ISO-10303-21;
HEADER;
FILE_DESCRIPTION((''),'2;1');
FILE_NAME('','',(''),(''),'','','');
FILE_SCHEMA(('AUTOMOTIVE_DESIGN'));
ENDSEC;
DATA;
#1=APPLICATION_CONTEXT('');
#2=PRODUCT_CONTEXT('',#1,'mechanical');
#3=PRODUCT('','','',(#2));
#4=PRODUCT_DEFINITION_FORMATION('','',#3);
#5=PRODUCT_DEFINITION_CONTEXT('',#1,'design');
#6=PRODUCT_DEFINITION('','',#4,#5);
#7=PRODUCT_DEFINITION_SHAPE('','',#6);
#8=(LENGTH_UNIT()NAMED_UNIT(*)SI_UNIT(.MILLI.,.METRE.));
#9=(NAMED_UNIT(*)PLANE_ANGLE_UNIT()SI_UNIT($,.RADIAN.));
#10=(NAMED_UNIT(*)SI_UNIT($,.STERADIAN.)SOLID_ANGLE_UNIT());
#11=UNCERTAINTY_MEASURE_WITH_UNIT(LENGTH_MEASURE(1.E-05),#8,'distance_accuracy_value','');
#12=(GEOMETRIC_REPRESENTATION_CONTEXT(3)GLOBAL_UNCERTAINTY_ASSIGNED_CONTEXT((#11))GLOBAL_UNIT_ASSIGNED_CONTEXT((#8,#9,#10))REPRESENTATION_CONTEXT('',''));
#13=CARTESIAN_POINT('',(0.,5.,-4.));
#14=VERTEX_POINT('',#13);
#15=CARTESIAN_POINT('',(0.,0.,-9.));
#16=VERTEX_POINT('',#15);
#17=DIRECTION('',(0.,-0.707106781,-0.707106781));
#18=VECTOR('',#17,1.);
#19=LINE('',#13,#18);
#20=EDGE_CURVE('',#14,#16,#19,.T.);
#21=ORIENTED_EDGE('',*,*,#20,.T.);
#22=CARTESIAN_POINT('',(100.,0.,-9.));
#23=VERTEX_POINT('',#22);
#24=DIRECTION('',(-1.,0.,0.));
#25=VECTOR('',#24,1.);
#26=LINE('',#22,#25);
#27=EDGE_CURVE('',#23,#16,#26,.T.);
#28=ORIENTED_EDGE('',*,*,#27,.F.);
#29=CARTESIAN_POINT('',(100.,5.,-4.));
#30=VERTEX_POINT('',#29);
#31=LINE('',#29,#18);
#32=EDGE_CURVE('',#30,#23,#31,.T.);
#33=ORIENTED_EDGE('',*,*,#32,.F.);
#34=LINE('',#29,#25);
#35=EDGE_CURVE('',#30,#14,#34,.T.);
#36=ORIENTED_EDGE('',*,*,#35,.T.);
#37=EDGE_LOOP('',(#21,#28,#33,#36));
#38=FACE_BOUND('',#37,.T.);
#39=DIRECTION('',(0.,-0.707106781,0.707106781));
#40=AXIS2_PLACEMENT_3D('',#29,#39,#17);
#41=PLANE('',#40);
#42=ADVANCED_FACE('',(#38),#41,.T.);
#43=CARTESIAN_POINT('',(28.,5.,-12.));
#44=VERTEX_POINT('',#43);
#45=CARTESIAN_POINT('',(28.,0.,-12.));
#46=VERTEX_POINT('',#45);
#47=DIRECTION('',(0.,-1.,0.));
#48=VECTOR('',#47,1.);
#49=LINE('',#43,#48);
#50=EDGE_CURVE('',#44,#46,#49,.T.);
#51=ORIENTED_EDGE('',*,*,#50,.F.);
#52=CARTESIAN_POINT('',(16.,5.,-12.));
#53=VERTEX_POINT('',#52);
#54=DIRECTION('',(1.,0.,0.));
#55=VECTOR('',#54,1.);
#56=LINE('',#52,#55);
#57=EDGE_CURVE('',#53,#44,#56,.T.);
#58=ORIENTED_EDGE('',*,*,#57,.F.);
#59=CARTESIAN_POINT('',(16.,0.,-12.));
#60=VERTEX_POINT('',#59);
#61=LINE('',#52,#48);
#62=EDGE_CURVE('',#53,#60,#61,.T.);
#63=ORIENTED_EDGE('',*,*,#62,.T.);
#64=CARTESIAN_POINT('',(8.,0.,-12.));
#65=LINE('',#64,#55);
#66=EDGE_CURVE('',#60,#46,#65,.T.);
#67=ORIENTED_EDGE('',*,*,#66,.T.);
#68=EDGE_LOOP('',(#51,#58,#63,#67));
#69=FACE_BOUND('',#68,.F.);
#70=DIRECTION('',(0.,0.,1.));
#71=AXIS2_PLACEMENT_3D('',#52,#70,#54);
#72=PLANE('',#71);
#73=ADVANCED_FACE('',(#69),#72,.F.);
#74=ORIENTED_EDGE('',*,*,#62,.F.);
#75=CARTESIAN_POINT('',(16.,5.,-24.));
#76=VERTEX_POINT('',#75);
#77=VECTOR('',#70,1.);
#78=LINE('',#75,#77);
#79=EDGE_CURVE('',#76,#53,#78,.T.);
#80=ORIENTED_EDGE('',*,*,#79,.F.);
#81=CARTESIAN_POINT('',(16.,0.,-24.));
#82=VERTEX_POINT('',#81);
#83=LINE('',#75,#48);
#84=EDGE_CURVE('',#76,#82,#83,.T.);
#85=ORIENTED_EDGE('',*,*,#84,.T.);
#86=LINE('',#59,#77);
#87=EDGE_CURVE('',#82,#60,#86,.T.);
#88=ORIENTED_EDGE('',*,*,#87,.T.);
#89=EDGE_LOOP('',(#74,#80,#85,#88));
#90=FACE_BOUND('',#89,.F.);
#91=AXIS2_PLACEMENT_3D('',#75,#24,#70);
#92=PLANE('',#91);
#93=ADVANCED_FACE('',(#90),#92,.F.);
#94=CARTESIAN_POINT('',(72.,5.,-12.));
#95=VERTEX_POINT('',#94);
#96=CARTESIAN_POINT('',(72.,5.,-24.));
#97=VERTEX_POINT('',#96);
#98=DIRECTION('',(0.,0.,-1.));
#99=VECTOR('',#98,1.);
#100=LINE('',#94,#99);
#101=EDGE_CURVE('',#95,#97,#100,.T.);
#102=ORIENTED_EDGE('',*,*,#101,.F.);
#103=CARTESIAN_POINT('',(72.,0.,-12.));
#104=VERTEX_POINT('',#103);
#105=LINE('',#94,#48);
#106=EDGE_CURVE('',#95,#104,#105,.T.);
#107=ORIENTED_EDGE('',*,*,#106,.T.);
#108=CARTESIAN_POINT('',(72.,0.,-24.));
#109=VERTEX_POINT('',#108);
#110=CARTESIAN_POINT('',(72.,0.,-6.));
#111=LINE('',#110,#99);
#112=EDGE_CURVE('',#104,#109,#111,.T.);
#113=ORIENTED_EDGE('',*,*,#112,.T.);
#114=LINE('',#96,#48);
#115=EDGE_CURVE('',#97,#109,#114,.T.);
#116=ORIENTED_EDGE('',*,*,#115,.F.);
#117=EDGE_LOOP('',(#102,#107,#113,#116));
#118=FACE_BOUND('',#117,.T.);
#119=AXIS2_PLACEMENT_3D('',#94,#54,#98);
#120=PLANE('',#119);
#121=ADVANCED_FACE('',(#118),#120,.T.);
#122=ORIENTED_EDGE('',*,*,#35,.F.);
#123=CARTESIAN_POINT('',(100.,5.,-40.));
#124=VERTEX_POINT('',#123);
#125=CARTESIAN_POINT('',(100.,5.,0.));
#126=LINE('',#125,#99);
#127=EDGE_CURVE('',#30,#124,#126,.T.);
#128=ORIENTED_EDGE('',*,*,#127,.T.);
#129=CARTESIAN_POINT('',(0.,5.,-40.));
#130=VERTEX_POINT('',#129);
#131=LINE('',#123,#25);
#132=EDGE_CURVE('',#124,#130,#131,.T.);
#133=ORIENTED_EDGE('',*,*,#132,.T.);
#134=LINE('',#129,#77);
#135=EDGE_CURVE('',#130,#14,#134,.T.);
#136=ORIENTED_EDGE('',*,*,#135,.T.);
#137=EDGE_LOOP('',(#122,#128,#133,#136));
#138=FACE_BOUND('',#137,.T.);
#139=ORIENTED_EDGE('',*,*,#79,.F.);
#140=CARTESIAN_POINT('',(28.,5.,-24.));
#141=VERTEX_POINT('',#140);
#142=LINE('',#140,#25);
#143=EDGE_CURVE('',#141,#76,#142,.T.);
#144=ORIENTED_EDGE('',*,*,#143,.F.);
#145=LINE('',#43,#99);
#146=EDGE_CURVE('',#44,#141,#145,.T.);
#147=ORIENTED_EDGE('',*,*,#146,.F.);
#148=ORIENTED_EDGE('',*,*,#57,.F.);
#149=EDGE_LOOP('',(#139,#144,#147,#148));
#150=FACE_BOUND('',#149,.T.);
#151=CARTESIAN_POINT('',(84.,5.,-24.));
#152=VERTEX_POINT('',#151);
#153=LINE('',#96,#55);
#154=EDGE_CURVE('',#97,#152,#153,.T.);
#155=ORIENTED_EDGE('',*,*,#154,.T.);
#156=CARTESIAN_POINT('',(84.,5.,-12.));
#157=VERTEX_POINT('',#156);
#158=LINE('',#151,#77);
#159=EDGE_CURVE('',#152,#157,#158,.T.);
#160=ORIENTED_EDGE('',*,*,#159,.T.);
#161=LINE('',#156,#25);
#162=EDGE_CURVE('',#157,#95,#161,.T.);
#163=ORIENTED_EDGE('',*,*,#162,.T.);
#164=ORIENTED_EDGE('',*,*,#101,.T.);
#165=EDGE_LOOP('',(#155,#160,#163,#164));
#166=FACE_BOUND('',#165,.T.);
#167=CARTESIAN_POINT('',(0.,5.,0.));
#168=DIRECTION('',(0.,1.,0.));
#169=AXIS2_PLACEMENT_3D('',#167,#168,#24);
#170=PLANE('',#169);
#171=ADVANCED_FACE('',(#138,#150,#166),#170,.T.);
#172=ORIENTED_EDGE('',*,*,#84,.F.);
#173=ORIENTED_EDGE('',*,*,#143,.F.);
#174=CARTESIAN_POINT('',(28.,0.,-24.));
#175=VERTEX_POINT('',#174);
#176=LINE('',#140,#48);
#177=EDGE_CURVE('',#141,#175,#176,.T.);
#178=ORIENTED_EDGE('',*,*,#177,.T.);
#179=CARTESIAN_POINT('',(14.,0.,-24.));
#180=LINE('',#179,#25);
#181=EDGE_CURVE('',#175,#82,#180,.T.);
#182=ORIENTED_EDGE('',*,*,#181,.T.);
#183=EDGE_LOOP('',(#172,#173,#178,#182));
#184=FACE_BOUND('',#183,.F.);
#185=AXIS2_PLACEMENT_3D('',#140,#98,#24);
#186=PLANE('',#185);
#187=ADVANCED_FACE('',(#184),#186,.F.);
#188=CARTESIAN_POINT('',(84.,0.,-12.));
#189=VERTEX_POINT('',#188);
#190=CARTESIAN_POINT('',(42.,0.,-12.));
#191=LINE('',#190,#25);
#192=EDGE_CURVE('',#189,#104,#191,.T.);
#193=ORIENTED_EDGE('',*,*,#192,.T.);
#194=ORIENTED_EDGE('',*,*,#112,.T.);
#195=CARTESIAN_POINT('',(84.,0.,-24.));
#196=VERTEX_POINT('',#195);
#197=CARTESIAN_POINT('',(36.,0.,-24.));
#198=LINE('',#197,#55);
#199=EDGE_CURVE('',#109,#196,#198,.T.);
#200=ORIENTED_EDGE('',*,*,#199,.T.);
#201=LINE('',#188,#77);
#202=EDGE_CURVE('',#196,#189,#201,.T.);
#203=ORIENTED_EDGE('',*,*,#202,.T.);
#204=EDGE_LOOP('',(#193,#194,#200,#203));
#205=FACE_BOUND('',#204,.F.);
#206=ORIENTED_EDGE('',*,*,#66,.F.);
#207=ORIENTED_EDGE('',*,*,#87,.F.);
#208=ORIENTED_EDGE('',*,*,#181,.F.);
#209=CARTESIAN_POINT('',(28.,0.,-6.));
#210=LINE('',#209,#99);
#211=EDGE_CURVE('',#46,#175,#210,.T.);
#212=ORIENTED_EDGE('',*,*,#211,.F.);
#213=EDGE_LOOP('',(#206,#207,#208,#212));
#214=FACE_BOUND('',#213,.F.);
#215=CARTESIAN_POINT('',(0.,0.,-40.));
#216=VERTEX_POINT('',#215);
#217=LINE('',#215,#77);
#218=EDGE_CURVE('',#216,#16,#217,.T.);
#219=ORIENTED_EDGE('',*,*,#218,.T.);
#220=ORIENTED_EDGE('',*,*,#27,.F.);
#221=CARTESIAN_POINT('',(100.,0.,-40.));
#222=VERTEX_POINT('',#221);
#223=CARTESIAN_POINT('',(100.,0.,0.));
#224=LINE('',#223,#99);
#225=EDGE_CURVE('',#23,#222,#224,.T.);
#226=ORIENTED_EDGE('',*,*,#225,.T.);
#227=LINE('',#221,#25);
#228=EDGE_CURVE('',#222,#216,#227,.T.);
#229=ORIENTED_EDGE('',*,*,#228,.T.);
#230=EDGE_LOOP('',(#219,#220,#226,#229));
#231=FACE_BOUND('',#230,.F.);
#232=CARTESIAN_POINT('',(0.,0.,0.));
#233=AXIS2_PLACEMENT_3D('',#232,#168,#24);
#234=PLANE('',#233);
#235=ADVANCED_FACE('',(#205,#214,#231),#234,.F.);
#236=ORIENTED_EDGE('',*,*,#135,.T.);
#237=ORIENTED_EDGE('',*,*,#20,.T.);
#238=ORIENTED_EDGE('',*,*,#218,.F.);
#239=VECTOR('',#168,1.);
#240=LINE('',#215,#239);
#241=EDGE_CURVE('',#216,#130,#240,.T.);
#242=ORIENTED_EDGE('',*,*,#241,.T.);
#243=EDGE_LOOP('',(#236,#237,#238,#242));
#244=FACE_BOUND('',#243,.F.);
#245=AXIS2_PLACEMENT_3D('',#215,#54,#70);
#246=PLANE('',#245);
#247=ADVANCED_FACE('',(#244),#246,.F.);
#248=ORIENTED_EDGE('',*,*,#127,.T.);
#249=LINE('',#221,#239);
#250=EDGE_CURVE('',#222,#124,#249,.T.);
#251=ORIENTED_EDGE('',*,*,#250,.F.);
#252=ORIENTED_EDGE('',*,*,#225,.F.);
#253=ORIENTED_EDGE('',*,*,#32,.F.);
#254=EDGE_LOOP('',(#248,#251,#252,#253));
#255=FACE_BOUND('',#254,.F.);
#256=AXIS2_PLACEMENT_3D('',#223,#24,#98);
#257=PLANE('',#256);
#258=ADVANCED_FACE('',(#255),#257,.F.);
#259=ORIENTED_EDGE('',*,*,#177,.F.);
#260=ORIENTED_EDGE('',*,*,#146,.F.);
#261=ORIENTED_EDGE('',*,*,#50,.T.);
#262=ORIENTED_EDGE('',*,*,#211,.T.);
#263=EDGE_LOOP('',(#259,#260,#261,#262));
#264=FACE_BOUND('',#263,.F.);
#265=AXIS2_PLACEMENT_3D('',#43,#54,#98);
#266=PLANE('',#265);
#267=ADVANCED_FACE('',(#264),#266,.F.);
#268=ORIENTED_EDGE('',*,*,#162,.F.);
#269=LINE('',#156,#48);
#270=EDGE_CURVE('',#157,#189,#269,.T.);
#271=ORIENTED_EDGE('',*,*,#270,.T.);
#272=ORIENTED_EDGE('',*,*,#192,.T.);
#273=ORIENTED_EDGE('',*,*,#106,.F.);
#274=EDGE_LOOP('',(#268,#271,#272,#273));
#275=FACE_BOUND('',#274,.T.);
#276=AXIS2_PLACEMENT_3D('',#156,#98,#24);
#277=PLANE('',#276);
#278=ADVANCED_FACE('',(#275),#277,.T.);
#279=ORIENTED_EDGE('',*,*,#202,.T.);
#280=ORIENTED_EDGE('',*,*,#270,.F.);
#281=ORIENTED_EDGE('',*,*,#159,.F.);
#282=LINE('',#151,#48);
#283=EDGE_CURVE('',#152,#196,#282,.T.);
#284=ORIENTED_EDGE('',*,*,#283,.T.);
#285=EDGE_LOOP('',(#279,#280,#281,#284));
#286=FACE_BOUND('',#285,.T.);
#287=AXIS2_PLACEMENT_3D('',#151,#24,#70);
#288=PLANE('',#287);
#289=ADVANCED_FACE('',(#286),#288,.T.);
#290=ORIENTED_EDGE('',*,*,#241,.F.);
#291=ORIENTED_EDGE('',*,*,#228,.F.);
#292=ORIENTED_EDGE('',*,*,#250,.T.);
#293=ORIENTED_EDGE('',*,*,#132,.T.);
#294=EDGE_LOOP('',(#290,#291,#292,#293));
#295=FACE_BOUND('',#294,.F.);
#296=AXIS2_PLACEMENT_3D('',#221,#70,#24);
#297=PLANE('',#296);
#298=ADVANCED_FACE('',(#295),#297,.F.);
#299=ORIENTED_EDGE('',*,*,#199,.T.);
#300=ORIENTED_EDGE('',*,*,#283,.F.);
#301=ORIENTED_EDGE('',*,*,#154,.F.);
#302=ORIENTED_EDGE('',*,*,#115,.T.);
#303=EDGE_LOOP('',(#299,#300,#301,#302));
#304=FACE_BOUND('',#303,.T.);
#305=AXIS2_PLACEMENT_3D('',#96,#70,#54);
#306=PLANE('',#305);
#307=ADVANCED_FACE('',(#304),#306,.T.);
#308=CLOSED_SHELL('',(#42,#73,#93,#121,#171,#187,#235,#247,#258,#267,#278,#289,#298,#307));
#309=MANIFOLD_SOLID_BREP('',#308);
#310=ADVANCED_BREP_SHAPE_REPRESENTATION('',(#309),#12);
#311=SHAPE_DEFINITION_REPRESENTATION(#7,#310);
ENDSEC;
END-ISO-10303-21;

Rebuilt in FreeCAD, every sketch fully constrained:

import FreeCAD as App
import Part
import Sketcher
from FreeCAD import Vector
Q = App.Units.Quantity

doc = App.newDocument("Part")
body = doc.addObject("PartDesign::Body", "Body")

# Sketch on XZ plane
sketch1 = body.newObject("Sketcher::SketchObject", "Sketch")
sketch1.AttachmentSupport = (doc.getObject("XZ_Plane"), [""])
sketch1.MapMode = "FlatFace"
sketch1.addGeometry([
    Part.LineSegment(Vector(0, -40, 0), Vector(0, 0, 0)),
    Part.LineSegment(Vector(0, 0, 0), Vector(100, 0, 0)),
    Part.LineSegment(Vector(100, 0, 0), Vector(100, -40, 0)),
    Part.LineSegment(Vector(100, -40, 0), Vector(0, -40, 0)),
], False)
sketch1.addConstraint([
    Sketcher.Constraint("Coincident", 0, 2, 1, 1),
    Sketcher.Constraint("Coincident", 1, 2, 2, 1),
    Sketcher.Constraint("Coincident", 2, 2, 3, 1),
    Sketcher.Constraint("Coincident", 3, 2, 0, 1),
    Sketcher.Constraint("Vertical", 0),
    Sketcher.Constraint("Horizontal", 1),
    Sketcher.Constraint("Vertical", 2),
    Sketcher.Constraint("Horizontal", 3),
    Sketcher.Constraint("Coincident", 0, 2, -1, 1),
    Sketcher.Constraint("DistanceX", 1, 1, 1, 2, Q("100 mm")),
    Sketcher.Constraint("DistanceY", 0, 1, 0, 2, Q("40 mm")),
])
pad1 = body.newObject("PartDesign::Pad", "Pad")
pad1.Profile = sketch1
pad1.Length = 5
pad1.Reversed = True

# Sketch on YZ plane
sketch2 = body.newObject("Sketcher::SketchObject", "Sketch001")
sketch2.AttachmentSupport = (doc.getObject("YZ_Plane"), [""])
sketch2.MapMode = "FlatFace"
sketch2.AttachmentOffset = App.Placement(Vector(0, 0, 100), App.Rotation())
sketch2.addGeometry([
    Part.LineSegment(Vector(0, -4.346, 0), Vector(5, 0, 0)),
    Part.LineSegment(Vector(5, 0, 0), Vector(0, 0, 0)),
    Part.LineSegment(Vector(0, 0, 0), Vector(0, -4.346, 0)),
], False)
sketch2.addConstraint([
    Sketcher.Constraint("Coincident", 0, 2, 1, 1),
    Sketcher.Constraint("Coincident", 1, 2, 2, 1),
    Sketcher.Constraint("Coincident", 2, 2, 0, 1),
    Sketcher.Constraint("Horizontal", 1),
    Sketcher.Constraint("Vertical", 2),
    Sketcher.Constraint("Coincident", 1, 2, -1, 1),
    Sketcher.Constraint("DistanceX", 1, 2, 1, 1, Q("5 mm")),
    Sketcher.Constraint("DistanceY", 2, 2, 2, 1, Q("4.346 mm")),
])
pocket1 = body.newObject("PartDesign::Pocket", "Pocket")
pocket1.Profile = sketch2
pocket1.Length = 100

# Sketch on YZ plane
sketch3 = body.newObject("Sketcher::SketchObject", "Sketch002")
sketch3.AttachmentSupport = (doc.getObject("YZ_Plane"), [""])
sketch3.MapMode = "FlatFace"
sketch3.AttachmentOffset = App.Placement(Vector(0, 0, 100), App.Rotation())
sketch3.addGeometry([
    Part.LineSegment(Vector(0, -5, 0), Vector(5, 0, 0)),
    Part.LineSegment(Vector(5, 0, 0), Vector(0, 0, 0)),
    Part.LineSegment(Vector(0, 0, 0), Vector(0, -5, 0)),
], False)
sketch3.addConstraint([
    Sketcher.Constraint("Coincident", 0, 2, 1, 1),
    Sketcher.Constraint("Coincident", 1, 2, 2, 1),
    Sketcher.Constraint("Coincident", 2, 2, 0, 1),
    Sketcher.Constraint("Horizontal", 1),
    Sketcher.Constraint("Vertical", 2),
    Sketcher.Constraint("Coincident", 1, 2, -1, 1),
    Sketcher.Constraint("Equal", 1, 2),
    Sketcher.Constraint("DistanceX", 1, 2, 1, 1, Q("5 mm")),
])
pocket2 = body.newObject("PartDesign::Pocket", "Pocket001")
pocket2.Profile = sketch3
pocket2.Length = 100.25

# Sketch on YZ plane
sketch4 = body.newObject("Sketcher::SketchObject", "Sketch003")
sketch4.AttachmentSupport = (doc.getObject("YZ_Plane"), [""])
sketch4.MapMode = "FlatFace"
sketch4.AttachmentOffset = App.Placement(Vector(0, 0, 100), App.Rotation())
sketch4.addGeometry([
    Part.LineSegment(Vector(0, -7, 0), Vector(5, -2, 0)),
    Part.LineSegment(Vector(5, -2, 0), Vector(5, 0, 0)),
    Part.LineSegment(Vector(5, 0, 0), Vector(0, -5, 0)),
    Part.LineSegment(Vector(0, -5, 0), Vector(0, -7, 0)),
], False)
sketch4.addConstraint([
    Sketcher.Constraint("Coincident", 0, 2, 1, 1),
    Sketcher.Constraint("Coincident", 1, 2, 2, 1),
    Sketcher.Constraint("Coincident", 2, 2, 3, 1),
    Sketcher.Constraint("Coincident", 3, 2, 0, 1),
    Sketcher.Constraint("Vertical", 1),
    Sketcher.Constraint("Vertical", 3),
    Sketcher.Constraint("PointOnObject", 1, 2, -1),
    Sketcher.Constraint("PointOnObject", 2, 2, -2),
    Sketcher.Constraint("Parallel", 0, 2),
    Sketcher.Constraint("DistanceY", 1, 1, 1, 2, Q("2 mm")),
    Sketcher.Constraint("Angle", 2, Q("-135 deg")),
    Sketcher.Constraint("DistanceX", -1, 1, 0, 2, Q("5 mm")),
])
pocket3 = body.newObject("PartDesign::Pocket", "Pocket002")
pocket3.Profile = sketch4
pocket3.Length = 100.25

# Sketch on YZ plane
sketch5 = body.newObject("Sketcher::SketchObject", "Sketch004")
sketch5.AttachmentSupport = (doc.getObject("YZ_Plane"), [""])
sketch5.MapMode = "FlatFace"
sketch5.AttachmentOffset = App.Placement(Vector(0, 0, 100), App.Rotation())
sketch5.addGeometry([
    Part.LineSegment(Vector(5, -2, 0), Vector(0, -7, 0)),
    Part.LineSegment(Vector(0, -7, 0), Vector(0, -9, 0)),
    Part.LineSegment(Vector(0, -9, 0), Vector(5, -4, 0)),
    Part.LineSegment(Vector(5, -4, 0), Vector(5, -2, 0)),
], False)
sketch5.addConstraint([
    Sketcher.Constraint("Coincident", 0, 2, 1, 1),
    Sketcher.Constraint("Coincident", 1, 2, 2, 1),
    Sketcher.Constraint("Coincident", 2, 2, 3, 1),
    Sketcher.Constraint("Coincident", 3, 2, 0, 1),
    Sketcher.Constraint("Vertical", 1),
    Sketcher.Constraint("Vertical", 3),
    Sketcher.Constraint("PointOnObject", 0, 2, -2),
    Sketcher.Constraint("Parallel", 0, 2),
    Sketcher.Constraint("DistanceY", 1, 2, 1, 1, Q("2 mm")),
    Sketcher.Constraint("Angle", 0, Q("-135 deg")),
    Sketcher.Constraint("DistanceY", 3, 2, -1, 1, Q("2 mm")),
    Sketcher.Constraint("DistanceY", 0, 2, -1, 1, Q("7 mm")),
])
pocket4 = body.newObject("PartDesign::Pocket", "Pocket003")
pocket4.Profile = sketch5
pocket4.Length = 100

# Sketch on XZ plane
sketch6 = body.newObject("Sketcher::SketchObject", "Sketch005")
sketch6.AttachmentSupport = (doc.getObject("XZ_Plane"), [""])
sketch6.MapMode = "FlatFace"
sketch6.AttachmentOffset = App.Placement(Vector(0, 0, -5), App.Rotation())
sketch6.addGeometry([
    Part.LineSegment(Vector(16, -24, 0), Vector(16, -12, 0)),
    Part.LineSegment(Vector(16, -12, 0), Vector(28, -12, 0)),
    Part.LineSegment(Vector(28, -12, 0), Vector(28, -24, 0)),
    Part.LineSegment(Vector(28, -24, 0), Vector(16, -24, 0)),
], False)
sketch6.addConstraint([
    Sketcher.Constraint("Coincident", 0, 2, 1, 1),
    Sketcher.Constraint("Coincident", 1, 2, 2, 1),
    Sketcher.Constraint("Coincident", 2, 2, 3, 1),
    Sketcher.Constraint("Coincident", 3, 2, 0, 1),
    Sketcher.Constraint("Vertical", 0),
    Sketcher.Constraint("Horizontal", 1),
    Sketcher.Constraint("Vertical", 2),
    Sketcher.Constraint("Horizontal", 3),
    Sketcher.Constraint("Equal", 3, 0),
    Sketcher.Constraint("DistanceX", 1, 1, 1, 2, Q("12 mm")),
    Sketcher.Constraint("DistanceY", 0, 2, -1, 1, Q("12 mm")),
    Sketcher.Constraint("DistanceX", -1, 1, 0, 2, Q("16 mm")),
])
pocket5 = body.newObject("PartDesign::Pocket", "Pocket004")
pocket5.Profile = sketch6
pocket5.Length = 10
pocket5.Reversed = True

# Sketch on XZ plane
sketch7 = body.newObject("Sketcher::SketchObject", "Sketch006")
sketch7.AttachmentSupport = (doc.getObject("XZ_Plane"), [""])
sketch7.MapMode = "FlatFace"
sketch7.AttachmentOffset = App.Placement(Vector(0, 0, -5), App.Rotation())
sketch7.addGeometry([
    Part.LineSegment(Vector(72, -12, 0), Vector(84, -12, 0)),
    Part.LineSegment(Vector(84, -12, 0), Vector(84, -24, 0)),
    Part.LineSegment(Vector(84, -24, 0), Vector(72, -24, 0)),
    Part.LineSegment(Vector(72, -24, 0), Vector(72, -12, 0)),
], False)
sketch7.addConstraint([
    Sketcher.Constraint("Coincident", 0, 2, 1, 1),
    Sketcher.Constraint("Coincident", 1, 2, 2, 1),
    Sketcher.Constraint("Coincident", 2, 2, 3, 1),
    Sketcher.Constraint("Coincident", 3, 2, 0, 1),
    Sketcher.Constraint("Horizontal", 0),
    Sketcher.Constraint("Vertical", 1),
    Sketcher.Constraint("Horizontal", 2),
    Sketcher.Constraint("Vertical", 3),
    Sketcher.Constraint("Equal", 2, 1),
    Sketcher.Constraint("DistanceX", 0, 1, 0, 2, Q("12 mm")),
    Sketcher.Constraint("DistanceY", 0, 2, -1, 1, Q("12 mm")),
    Sketcher.Constraint("DistanceX", -1, 1, 0, 2, Q("84 mm")),
])
pocket6 = body.newObject("PartDesign::Pocket", "Pocket005")
pocket6.Profile = sketch7
pocket6.Length = 10
pocket6.Reversed = True

doc.recompute()
